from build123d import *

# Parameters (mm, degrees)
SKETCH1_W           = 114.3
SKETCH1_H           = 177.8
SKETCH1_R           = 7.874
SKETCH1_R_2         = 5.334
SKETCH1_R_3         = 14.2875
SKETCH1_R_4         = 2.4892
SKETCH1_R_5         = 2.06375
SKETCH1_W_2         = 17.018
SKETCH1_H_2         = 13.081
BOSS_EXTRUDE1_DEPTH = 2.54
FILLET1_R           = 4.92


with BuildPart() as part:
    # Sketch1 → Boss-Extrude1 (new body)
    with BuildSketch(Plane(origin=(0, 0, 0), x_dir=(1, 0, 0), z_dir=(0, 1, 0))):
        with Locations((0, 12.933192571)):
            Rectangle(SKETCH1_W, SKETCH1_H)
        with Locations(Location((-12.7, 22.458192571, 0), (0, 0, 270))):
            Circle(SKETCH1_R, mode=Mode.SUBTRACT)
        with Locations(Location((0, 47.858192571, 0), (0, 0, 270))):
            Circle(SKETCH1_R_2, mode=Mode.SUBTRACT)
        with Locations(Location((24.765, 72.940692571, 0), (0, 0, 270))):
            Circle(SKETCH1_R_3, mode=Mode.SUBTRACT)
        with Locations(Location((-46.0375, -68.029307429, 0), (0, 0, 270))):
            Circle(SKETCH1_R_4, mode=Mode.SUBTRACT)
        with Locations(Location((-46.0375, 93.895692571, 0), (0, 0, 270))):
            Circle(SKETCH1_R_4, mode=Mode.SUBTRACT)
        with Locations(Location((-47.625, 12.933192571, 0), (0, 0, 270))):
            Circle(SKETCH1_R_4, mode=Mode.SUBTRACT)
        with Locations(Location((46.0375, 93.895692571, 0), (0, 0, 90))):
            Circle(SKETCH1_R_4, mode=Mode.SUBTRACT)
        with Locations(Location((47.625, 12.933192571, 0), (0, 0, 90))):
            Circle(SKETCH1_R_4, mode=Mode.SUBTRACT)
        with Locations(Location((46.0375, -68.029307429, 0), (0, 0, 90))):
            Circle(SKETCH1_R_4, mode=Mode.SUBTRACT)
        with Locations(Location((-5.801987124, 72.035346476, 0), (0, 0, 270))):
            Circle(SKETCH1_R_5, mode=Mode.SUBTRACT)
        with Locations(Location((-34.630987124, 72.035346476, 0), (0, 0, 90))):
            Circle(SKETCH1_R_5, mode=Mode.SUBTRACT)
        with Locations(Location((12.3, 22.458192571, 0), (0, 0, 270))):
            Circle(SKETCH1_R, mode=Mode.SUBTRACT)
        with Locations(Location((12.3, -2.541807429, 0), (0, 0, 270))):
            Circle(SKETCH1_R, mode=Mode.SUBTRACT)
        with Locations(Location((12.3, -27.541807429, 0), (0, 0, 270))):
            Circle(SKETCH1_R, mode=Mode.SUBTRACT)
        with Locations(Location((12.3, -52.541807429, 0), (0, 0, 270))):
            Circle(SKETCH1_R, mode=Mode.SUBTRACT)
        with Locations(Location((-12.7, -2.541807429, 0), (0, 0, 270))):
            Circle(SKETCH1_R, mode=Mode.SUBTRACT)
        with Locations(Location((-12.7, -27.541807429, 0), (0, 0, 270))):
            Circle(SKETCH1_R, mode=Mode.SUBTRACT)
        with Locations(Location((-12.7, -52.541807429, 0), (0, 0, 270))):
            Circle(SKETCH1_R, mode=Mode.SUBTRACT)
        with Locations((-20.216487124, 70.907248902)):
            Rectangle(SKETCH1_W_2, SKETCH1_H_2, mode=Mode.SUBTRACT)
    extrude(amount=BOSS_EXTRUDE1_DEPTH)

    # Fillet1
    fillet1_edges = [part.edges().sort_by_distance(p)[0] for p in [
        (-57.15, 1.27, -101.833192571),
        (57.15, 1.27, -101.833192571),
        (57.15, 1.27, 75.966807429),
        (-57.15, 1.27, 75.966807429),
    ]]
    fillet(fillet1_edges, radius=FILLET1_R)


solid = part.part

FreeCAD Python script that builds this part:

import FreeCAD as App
import Part
import Sketcher
from FreeCAD import Vector
Q = App.Units.Quantity


def edges_at(feature, points):
    """Names of the edges that pass closest to the given points."""
    edges = feature.Shape.Edges
    near = lambda p: min(range(len(edges)), key=lambda i: edges[i].distToShape(Part.Vertex(*p))[0])
    return sorted({f"Edge{near(p) + 1}" for p in points})

doc = App.newDocument("Part")
body = doc.addObject("PartDesign::Body", "Body")

# Sketch on XZ plane
sketch1 = body.newObject("Sketcher::SketchObject", "Sketch")
sketch1.AttachmentSupport = (doc.getObject("XZ_Plane"), [""])
sketch1.MapMode = "FlatFace"
sketch1.addGeometry([
    Part.LineSegment(Vector(-57.15, -101.833193, 0), Vector(-57.15, 75.966807, 0)),  # 0
    Part.LineSegment(Vector(-57.15, 75.966807, 0), Vector(57.15, 75.966807, 0)),  # 1
    Part.LineSegment(Vector(57.15, 75.966807, 0), Vector(57.15, -101.833193, 0)),  # 2
    Part.LineSegment(Vector(57.15, -101.833193, 0), Vector(-57.15, -101.833193, 0)),  # 3
    Part.Circle(Vector(-46.0375, 68.029307, 0), Vector(0, 0, 1), 2.4892),  # 4
    Part.Circle(Vector(-12.7, 52.541807, 0), Vector(0, 0, 1), 7.874),  # 5
    Part.Circle(Vector(-12.7, 27.541807, 0), Vector(0, 0, 1), 7.874),  # 6
    Part.Circle(Vector(-12.7, 2.541807, 0), Vector(0, 0, 1), 7.874),  # 7
    Part.Circle(Vector(12.3, 52.541807, 0), Vector(0, 0, 1), 7.874),  # 8
    Part.Circle(Vector(46.0375, 68.029307, 0), Vector(0, 0, 1), 2.4892),  # 9
    Part.Circle(Vector(12.3, 27.541807, 0), Vector(0, 0, 1), 7.874),  # 10
    Part.Circle(Vector(12.3, 2.541807, 0), Vector(0, 0, 1), 7.874),  # 11
    Part.Circle(Vector(-47.625, -12.933193, 0), Vector(0, 0, 1), 2.4892),  # 12
    Part.Circle(Vector(-12.7, -22.458193, 0), Vector(0, 0, 1), 7.874),  # 13
    Part.Circle(Vector(-34.630987, -72.035346, 0), Vector(0, 0, 1), 2.06375),  # 14
    Part.Circle(Vector(-46.0375, -93.895693, 0), Vector(0, 0, 1), 2.4892),  # 15
    Part.LineSegment(Vector(-11.707487, -64.366749, 0), Vector(-28.725487, -64.366749, 0)),  # 16
    Part.LineSegment(Vector(-28.725487, -64.366749, 0), Vector(-28.725487, -77.447749, 0)),  # 17
    Part.LineSegment(Vector(-28.725487, -77.447749, 0), Vector(-11.707487, -77.447749, 0)),  # 18
    Part.LineSegment(Vector(-11.707487, -77.447749, 0), Vector(-11.707487, -64.366749, 0)),  # 19
    Part.Circle(Vector(-5.801987, -72.035346, 0), Vector(0, 0, 1), 2.06375),  # 20
    Part.Circle(Vector(12.3, -22.458193, 0), Vector(0, 0, 1), 7.874),  # 21
    Part.Circle(Vector(0, -47.858193, 0), Vector(0, 0, 1), 5.334),  # 22
    Part.Circle(Vector(47.625, -12.933193, 0), Vector(0, 0, 1), 2.4892),  # 23
    Part.Circle(Vector(24.765, -72.940693, 0), Vector(0, 0, 1), 14.2875),  # 24
    Part.Circle(Vector(46.0375, -93.895693, 0), Vector(0, 0, 1), 2.4892),  # 25
], False)
sketch1.addConstraint([
    Sketcher.Constraint("Coincident", 0, 2, 1, 1),
    Sketcher.Constraint("Coincident", 1, 2, 2, 1),
    Sketcher.Constraint("Coincident", 2, 2, 3, 1),
    Sketcher.Constraint("Coincident", 3, 2, 0, 1),
    Sketcher.Constraint("Coincident", 16, 2, 17, 1),
    Sketcher.Constraint("Coincident", 17, 2, 18, 1),
    Sketcher.Constraint("Coincident", 18, 2, 19, 1),
    Sketcher.Constraint("Coincident", 19, 2, 16, 1),
    Sketcher.Constraint("Vertical", 0),
    Sketcher.Constraint("Horizontal", 1),
    Sketcher.Constraint("Vertical", 2),
    Sketcher.Constraint("Horizontal", 3),
    Sketcher.Constraint("Horizontal", 16),
    Sketcher.Constraint("Vertical", 17),
    Sketcher.Constraint("Horizontal", 18),
    Sketcher.Constraint("Vertical", 19),
    Sketcher.Constraint("Equal", 5, 6),
    Sketcher.Constraint("Equal", 6, 7),
    Sketcher.Constraint("Equal", 7, 8),
    Sketcher.Constraint("Equal", 4, 9),
    Sketcher.Constraint("Equal", 8, 10),
    Sketcher.Constraint("Equal", 10, 11),
    Sketcher.Constraint("Equal", 9, 12),
    Sketcher.Constraint("Equal", 11, 13),
    Sketcher.Constraint("Equal", 12, 15),
    Sketcher.Constraint("Equal", 14, 20),
    Sketcher.Constraint("Equal", 13, 21),
    Sketcher.Constraint("Equal", 15, 23),
    Sketcher.Constraint("Equal", 23, 25),
    Sketcher.Constraint("Symmetric", 4, 3, 9, 3, -2),
    Sketcher.Constraint("Symmetric", 12, 3, 23, 3, -2),
    Sketcher.Constraint("Symmetric", 15, 3, 25, 3, -2),
    Sketcher.Constraint("PointOnObject", 22, 3, -2),
    Sketcher.Constraint("Horizontal", 5, 3, 8, 3),
    Sketcher.Constraint("Horizontal", 6, 3, 10, 3),
    Sketcher.Constraint("Horizontal", 7, 3, 11, 3),
    Sketcher.Constraint("Horizontal", 14, 3, 20, 3),
    Sketcher.Constraint("Horizontal", 13, 3, 21, 3),
    Sketcher.Constraint("Vertical", 5, 3, 6, 3),
    Sketcher.Constraint("Vertical", 6, 3, 7, 3),
    Sketcher.Constraint("Vertical", 8, 3, 10, 3),
    Sketcher.Constraint("Vertical", 10, 3, 11, 3),
    Sketcher.Constraint("Vertical", 7, 3, 13, 3),
    Sketcher.Constraint("Vertical", 4, 3, 15, 3),
    Sketcher.Constraint("Vertical", 11, 3, 21, 3),
    Sketcher.Constraint("Diameter", 5, Q("0.62 in")),
    Sketcher.Constraint("Diameter", 22, Q("0.42 in")),
    Sketcher.Constraint("DistanceY", 0, 1, 0, 2, Q("7 in")),
    Sketcher.Constraint("Diameter", 4, Q("0.196 in")),
    Sketcher.Constraint("Diameter", 24, Q("1.125 in")),
    Sketcher.Constraint("DistanceX", 1, 1, 1, 2, Q("4.5 in")),
    Sketcher.Constraint("DistanceY", 22, 3, 21, 3, Q("1 in")),
    Sketcher.Constraint("Diameter", 14, Q("0.1625 in")),
    Sketcher.Constraint("DistanceX", 16, 2, 16, 1, Q("0.67 in")),
    Sketcher.Constraint("DistanceX", 5, 3, -1, 1, Q("0.5 in")),
    Sketcher.Constraint("DistanceY", 2, 2, 23, 3, Q("3.5 in")),
    Sketcher.Constraint("DistanceY", 17, 2, 17, 1, Q("0.515 in")),
    Sketcher.Constraint("DistanceX", 0, 2, -1, 1, Q("2.25 in")),
    Sketcher.Constraint("DistanceX", 4, 3, -1, 1, Q("1.8125 in")),
    Sketcher.Constraint("DistanceX", 12, 3, -1, 1, Q("1.875 in")),
    Sketcher.Constraint("DistanceX", -1, 1, 24, 3, Q("0.975 in")),
    Sketcher.Constraint("DistanceY", 13, 3, 12, 3, Q("0.375 in")),
    Sketcher.Constraint("DistanceY", 15, 3, 13, 3, Q("2.8125 in")),
    Sketcher.Constraint("DistanceX", 14, 3, 20, 3, Q("1.135 in")),
    Sketcher.Constraint("DistanceY", 25, 3, 24, 3, Q("0.825 in")),
    Sketcher.Constraint("DistanceY", 4, 3, 0, 2, Q("0.3125 in")),
    Sketcher.Constraint("DistanceX", 14, 3, 16, 2, Q("0.2325 in")),
    Sketcher.Constraint("DistanceX", -1, 1, 8, 3, 12.3),
    Sketcher.Constraint("DistanceY", 5, 3, 4, 3, 15.4875),
    Sketcher.Constraint("DistanceY", 6, 3, 5, 3, 25.0),
    Sketcher.Constraint("DistanceY", 7, 3, 6, 3, 25.0),
    Sketcher.Constraint("DistanceY", 16, 2, -1, 1, 64.366749),
    Sketcher.Constraint("DistanceY", -1, 1, 4, 3, 68.029307),
    Sketcher.Constraint("DistanceX", 14, 3, -1, 1, 34.630987),
    Sketcher.Constraint("DistanceY", 14, 3, -1, 1, 72.035346),
])
pad1 = body.newObject("PartDesign::Pad", "Pad")
pad1.Profile = sketch1
pad1.Length = Q("0.1 in")
pad1.Reversed = True
doc.recompute()

fillet = body.newObject("PartDesign::Fillet", "Fillet")
fillet.Base = (pad1, edges_at(pad1, [
    (-57.15, 1.27, -101.833),
    (57.15, 1.27, -101.833),
    (57.15, 1.27, 75.967),
    (-57.15, 1.27, 75.967),
]))
fillet.Radius = 4.92

doc.recompute()
